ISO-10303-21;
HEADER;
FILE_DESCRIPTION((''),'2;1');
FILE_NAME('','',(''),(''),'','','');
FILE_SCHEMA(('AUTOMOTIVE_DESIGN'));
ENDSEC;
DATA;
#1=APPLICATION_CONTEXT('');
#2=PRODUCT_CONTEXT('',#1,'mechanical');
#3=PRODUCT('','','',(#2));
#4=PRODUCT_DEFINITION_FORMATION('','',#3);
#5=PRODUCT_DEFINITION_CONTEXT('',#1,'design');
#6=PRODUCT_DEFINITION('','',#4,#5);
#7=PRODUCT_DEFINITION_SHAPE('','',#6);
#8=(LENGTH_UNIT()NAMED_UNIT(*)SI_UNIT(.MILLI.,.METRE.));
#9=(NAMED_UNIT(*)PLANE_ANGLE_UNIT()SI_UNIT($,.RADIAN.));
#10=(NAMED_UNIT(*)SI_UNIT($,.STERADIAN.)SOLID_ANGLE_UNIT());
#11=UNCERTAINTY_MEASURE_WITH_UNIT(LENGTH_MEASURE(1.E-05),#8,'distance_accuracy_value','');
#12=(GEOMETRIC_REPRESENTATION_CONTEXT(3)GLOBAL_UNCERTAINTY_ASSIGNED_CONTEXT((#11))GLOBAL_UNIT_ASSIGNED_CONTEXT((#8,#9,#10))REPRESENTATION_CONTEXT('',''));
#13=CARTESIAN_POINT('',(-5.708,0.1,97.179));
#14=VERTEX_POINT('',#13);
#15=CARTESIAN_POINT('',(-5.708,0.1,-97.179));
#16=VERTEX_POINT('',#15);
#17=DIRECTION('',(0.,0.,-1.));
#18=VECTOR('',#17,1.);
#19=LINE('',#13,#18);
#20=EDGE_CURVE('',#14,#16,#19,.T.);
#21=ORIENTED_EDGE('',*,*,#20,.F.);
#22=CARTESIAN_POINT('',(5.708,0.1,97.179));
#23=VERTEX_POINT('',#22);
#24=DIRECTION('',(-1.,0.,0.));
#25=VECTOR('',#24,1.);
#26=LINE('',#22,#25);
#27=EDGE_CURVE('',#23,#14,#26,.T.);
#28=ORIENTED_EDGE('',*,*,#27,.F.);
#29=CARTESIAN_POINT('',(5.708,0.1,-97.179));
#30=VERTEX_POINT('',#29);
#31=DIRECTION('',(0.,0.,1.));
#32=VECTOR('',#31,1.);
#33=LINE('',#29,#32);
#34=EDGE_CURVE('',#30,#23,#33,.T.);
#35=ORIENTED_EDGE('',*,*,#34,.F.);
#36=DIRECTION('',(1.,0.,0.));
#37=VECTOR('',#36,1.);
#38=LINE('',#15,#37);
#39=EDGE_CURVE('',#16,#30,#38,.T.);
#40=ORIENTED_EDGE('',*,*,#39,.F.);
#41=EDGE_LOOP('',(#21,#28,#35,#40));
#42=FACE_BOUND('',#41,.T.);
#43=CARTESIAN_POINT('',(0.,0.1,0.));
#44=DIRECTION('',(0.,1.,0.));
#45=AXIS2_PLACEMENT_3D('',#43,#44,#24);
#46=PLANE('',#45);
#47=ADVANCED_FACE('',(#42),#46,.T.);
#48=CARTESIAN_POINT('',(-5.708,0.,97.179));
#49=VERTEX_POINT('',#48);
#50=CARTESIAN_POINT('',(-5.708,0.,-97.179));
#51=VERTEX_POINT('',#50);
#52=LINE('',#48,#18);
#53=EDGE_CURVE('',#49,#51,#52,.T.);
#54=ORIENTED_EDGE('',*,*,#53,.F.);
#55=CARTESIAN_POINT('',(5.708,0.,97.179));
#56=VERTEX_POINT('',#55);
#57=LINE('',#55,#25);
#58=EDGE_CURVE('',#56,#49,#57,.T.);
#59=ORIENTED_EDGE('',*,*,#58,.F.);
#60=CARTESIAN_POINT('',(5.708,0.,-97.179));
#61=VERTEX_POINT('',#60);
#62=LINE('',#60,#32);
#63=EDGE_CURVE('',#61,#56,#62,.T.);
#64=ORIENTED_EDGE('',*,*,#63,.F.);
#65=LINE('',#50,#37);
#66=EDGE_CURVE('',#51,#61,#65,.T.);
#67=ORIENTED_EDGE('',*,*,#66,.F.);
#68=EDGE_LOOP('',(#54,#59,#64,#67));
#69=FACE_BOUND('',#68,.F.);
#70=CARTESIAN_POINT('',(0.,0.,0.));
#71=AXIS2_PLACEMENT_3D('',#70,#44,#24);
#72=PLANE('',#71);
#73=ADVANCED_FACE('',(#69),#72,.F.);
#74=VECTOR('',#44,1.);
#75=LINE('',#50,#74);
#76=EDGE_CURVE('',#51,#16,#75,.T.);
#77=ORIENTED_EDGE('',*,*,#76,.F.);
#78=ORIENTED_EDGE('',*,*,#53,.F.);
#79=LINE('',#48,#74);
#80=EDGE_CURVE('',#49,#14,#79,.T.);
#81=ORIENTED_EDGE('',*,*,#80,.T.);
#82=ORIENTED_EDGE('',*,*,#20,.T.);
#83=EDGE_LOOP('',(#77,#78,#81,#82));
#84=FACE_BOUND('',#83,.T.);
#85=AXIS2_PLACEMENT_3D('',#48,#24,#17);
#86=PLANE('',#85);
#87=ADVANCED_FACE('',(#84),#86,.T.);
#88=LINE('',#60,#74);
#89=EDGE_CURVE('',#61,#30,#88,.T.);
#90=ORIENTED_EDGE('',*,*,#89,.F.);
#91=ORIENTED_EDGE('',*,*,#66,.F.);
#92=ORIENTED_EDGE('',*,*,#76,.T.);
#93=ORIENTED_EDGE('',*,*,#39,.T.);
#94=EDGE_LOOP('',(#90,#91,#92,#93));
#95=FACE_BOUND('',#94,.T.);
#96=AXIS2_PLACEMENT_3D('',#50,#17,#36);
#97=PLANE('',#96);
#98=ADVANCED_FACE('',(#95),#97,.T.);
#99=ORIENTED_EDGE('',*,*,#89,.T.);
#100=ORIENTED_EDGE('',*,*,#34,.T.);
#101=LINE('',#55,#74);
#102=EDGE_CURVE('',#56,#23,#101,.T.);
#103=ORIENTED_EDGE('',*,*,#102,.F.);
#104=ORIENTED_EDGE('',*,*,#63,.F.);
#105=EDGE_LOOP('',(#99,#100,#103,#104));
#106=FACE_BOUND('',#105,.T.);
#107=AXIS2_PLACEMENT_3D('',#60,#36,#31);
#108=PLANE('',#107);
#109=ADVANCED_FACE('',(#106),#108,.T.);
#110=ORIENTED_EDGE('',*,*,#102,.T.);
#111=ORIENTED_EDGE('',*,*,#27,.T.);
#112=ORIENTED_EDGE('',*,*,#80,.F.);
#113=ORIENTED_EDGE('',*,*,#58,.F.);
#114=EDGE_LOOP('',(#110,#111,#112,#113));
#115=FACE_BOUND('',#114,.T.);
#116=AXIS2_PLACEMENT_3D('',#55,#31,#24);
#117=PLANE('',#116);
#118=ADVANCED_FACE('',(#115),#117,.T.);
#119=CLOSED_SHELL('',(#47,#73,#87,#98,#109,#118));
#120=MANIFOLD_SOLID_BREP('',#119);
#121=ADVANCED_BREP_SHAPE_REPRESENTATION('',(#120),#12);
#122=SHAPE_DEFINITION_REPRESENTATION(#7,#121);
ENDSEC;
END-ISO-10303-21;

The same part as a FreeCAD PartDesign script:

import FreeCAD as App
import Part
import Sketcher
from FreeCAD import Vector
Q = App.Units.Quantity

doc = App.newDocument("Part")
body = doc.addObject("PartDesign::Body", "Body")

# Sketch on XZ plane
sketch1 = doc.addObject("Sketcher::SketchObject", "Sketch")
body.addObject(sketch1)
sketch1.AttachmentSupport = (doc.XZ_Plane, [""])
sketch1.MapMode = "FlatFace"
sketch1.addGeometry([
    Part.LineSegment(Vector(-6, 97, 0), Vector(6, 97, 0)),
    Part.LineSegment(Vector(6, 97, 0), Vector(6, -97, 0)),
    Part.LineSegment(Vector(6, -97, 0), Vector(-6, -97, 0)),
    Part.LineSegment(Vector(-6, -97, 0), Vector(-6, 97, 0)),
], False)
sketch1.addConstraint([
    Sketcher.Constraint("Coincident", 0, 2, 1, 1),
    Sketcher.Constraint("Coincident", 1, 2, 2, 1),
    Sketcher.Constraint("Coincident", 2, 2, 3, 1),
    Sketcher.Constraint("Coincident", 3, 2, 0, 1),
    Sketcher.Constraint("Horizontal", 0),
    Sketcher.Constraint("Vertical", 1),
    Sketcher.Constraint("Horizontal", 2),
    Sketcher.Constraint("Vertical", 3),
    Sketcher.Constraint("Symmetric", 0, 2, 2, 2, -1, 1),
    Sketcher.Constraint("DistanceX", 0, 1, 0, 2, Q("11.416 mm")),
    Sketcher.Constraint("DistanceY", 1, 2, 1, 1, Q("194.358 mm")),
])
pad1 = doc.addObject("PartDesign::Pad", "Pad")
body.addObject(pad1)
pad1.Profile = sketch1
pad1.Length = 0.1
pad1.Reversed = True

doc.recompute()
